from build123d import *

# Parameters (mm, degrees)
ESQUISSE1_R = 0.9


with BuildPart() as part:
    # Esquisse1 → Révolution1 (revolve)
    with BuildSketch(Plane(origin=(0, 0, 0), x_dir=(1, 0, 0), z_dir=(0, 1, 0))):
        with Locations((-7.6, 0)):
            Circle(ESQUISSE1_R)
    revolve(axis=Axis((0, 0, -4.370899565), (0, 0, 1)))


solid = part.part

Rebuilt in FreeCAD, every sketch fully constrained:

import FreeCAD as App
import Part
import Sketcher
from FreeCAD import Vector

doc = App.newDocument("Part")
params = doc.addObject("Spreadsheet::Sheet", "Params")
for row, (alias, value) in enumerate([
    ("sketch1_diameter", "1.8 mm"),
    ("revolution_angle", "360 deg"),
], start=1):
    params.set(f"A{row}", alias)
    params.set(f"B{row}", "=" + value)
    params.setAlias(f"B{row}", alias)

body = doc.addObject("PartDesign::Body", "Body")

# Sketch on XZ plane
sketch1 = doc.addObject("Sketcher::SketchObject", "Sketch")
body.addObject(sketch1)
sketch1.AttachmentSupport = (doc.XZ_Plane, [""])
sketch1.MapMode = "FlatFace"
sketch1.addGeometry(Part.Circle(Vector(-7.6, 0, 0), Vector(0, 0, 1), 0.9), False)
sketch1.addConstraint(Sketcher.Constraint("PointOnObject", 0, 3, -1))
sketch1.addConstraint(Sketcher.Constraint("Diameter", 0, 1.8))
sketch1.addConstraint(Sketcher.Constraint("DistanceX", 0, 3, -1, 1, 7.6))
sketch1.setExpression("Constraints[1]", "Params.sketch1_diameter")
revolution = doc.addObject("PartDesign::Revolution", "Revolution")
body.addObject(revolution)
revolution.Profile = sketch1
revolution.ReferenceAxis = (sketch1, ["V_Axis"])
revolution.setExpression("Angle", "Params.revolution_angle")

doc.recompute()
